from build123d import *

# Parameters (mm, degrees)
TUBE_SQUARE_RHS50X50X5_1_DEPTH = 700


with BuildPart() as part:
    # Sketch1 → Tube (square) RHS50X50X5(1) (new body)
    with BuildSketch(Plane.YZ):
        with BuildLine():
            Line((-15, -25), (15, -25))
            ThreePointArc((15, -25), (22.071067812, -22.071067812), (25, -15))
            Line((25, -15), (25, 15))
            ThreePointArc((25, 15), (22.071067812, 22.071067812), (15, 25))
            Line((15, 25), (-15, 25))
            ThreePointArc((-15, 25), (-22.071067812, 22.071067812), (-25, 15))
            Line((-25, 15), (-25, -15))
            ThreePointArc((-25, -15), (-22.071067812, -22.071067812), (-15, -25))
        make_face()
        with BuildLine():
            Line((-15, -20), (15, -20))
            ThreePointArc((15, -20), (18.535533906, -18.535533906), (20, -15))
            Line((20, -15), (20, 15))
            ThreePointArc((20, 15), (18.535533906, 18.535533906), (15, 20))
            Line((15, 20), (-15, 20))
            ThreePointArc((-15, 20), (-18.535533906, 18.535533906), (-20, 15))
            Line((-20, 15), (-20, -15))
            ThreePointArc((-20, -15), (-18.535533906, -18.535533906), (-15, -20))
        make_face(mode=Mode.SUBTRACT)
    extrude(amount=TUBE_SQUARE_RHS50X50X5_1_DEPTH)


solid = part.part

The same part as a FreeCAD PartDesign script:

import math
import FreeCAD as App
import Part
import Sketcher

V = App.Vector
Q = App.Units.Quantity

doc = App.newDocument("Part")
body = doc.addObject("PartDesign::Body", "Body")

sketch1 = doc.addObject("Sketcher::SketchObject", "Sketch")
body.addObject(sketch1)
sketch1.AttachmentSupport = (doc.YZ_Plane, [""])
sketch1.MapMode = "FlatFace"
sketch1.addGeometry(Part.LineSegment(V(-15, -25, 0), V(15, -25, 0)), False)
sketch1.addGeometry(Part.ArcOfCircle(Part.Circle(V(15, -15, 0), V(0, 0, 1), 10), math.radians(-90), math.radians(0)), False)
sketch1.addGeometry(Part.LineSegment(V(25, -15, 0), V(25, 15, 0)), False)
sketch1.addGeometry(Part.ArcOfCircle(Part.Circle(V(15, 15, 0), V(0, 0, 1), 10), math.radians(0), math.radians(90)), False)
sketch1.addGeometry(Part.LineSegment(V(15, 25, 0), V(-15, 25, 0)), False)
sketch1.addGeometry(Part.ArcOfCircle(Part.Circle(V(-15, 15, 0), V(0, 0, 1), 10), math.radians(90), math.radians(180)), False)
sketch1.addGeometry(Part.LineSegment(V(-25, 15, 0), V(-25, -15, 0)), False)
sketch1.addGeometry(Part.ArcOfCircle(Part.Circle(V(-15, -15, 0), V(0, 0, 1), 10), math.radians(180), math.radians(270)), False)
sketch1.addGeometry(Part.LineSegment(V(15, -20, 0), V(-15, -20, 0)), False)
sketch1.addGeometry(Part.ArcOfCircle(Part.Circle(V(-15, -15, 0), V(0, 0, 1), 5), math.radians(180), math.radians(270)), False)
sketch1.addGeometry(Part.LineSegment(V(-20, -15, 0), V(-20, 15, 0)), False)
sketch1.addGeometry(Part.ArcOfCircle(Part.Circle(V(-15, 15, 0), V(0, 0, 1), 5), math.radians(90), math.radians(180)), False)
sketch1.addGeometry(Part.LineSegment(V(-15, 20, 0), V(15, 20, 0)), False)
sketch1.addGeometry(Part.ArcOfCircle(Part.Circle(V(15, 15, 0), V(0, 0, 1), 5), math.radians(0), math.radians(90)), False)
sketch1.addGeometry(Part.LineSegment(V(20, 15, 0), V(20, -15, 0)), False)
sketch1.addGeometry(Part.ArcOfCircle(Part.Circle(V(15, -15, 0), V(0, 0, 1), 5), math.radians(-90), math.radians(0)), False)
sketch1.addConstraint(Sketcher.Constraint("Tangent", 0, 2, 1, 1))
sketch1.addConstraint(Sketcher.Constraint("Tangent", 1, 2, 2, 1))
sketch1.addConstraint(Sketcher.Constraint("Tangent", 2, 2, 3, 1))
sketch1.addConstraint(Sketcher.Constraint("Tangent", 3, 2, 4, 1))
sketch1.addConstraint(Sketcher.Constraint("Tangent", 4, 2, 5, 1))
sketch1.addConstraint(Sketcher.Constraint("Tangent", 5, 2, 6, 1))
sketch1.addConstraint(Sketcher.Constraint("Tangent", 6, 2, 7, 1))
sketch1.addConstraint(Sketcher.Constraint("Tangent", 7, 2, 0, 1))
sketch1.addConstraint(Sketcher.Constraint("Tangent", 8, 2, 9, 2))
sketch1.addConstraint(Sketcher.Constraint("Tangent", 9, 1, 10, 1))
sketch1.addConstraint(Sketcher.Constraint("Tangent", 10, 2, 11, 2))
sketch1.addConstraint(Sketcher.Constraint("Tangent", 11, 1, 12, 1))
sketch1.addConstraint(Sketcher.Constraint("Tangent", 12, 2, 13, 2))
sketch1.addConstraint(Sketcher.Constraint("Tangent", 13, 1, 14, 1))
sketch1.addConstraint(Sketcher.Constraint("Tangent", 14, 2, 15, 2))
sketch1.addConstraint(Sketcher.Constraint("Tangent", 15, 1, 8, 1))
sketch1.addConstraint(Sketcher.Constraint("Horizontal", 0))
sketch1.addConstraint(Sketcher.Constraint("Vertical", 2))
sketch1.addConstraint(Sketcher.Constraint("Horizontal", 4))
sketch1.addConstraint(Sketcher.Constraint("Vertical", 6))
sketch1.addConstraint(Sketcher.Constraint("Horizontal", 8))
sketch1.addConstraint(Sketcher.Constraint("Vertical", 10))
sketch1.addConstraint(Sketcher.Constraint("Horizontal", 12))
sketch1.addConstraint(Sketcher.Constraint("Vertical", 14))
sketch1.addConstraint(Sketcher.Constraint("Coincident", 9, 3, 7, 3))
sketch1.addConstraint(Sketcher.Constraint("Coincident", 11, 3, 5, 3))
sketch1.addConstraint(Sketcher.Constraint("Coincident", 13, 3, 3, 3))
sketch1.addConstraint(Sketcher.Constraint("Equal", 1, 3))
sketch1.addConstraint(Sketcher.Constraint("Equal", 3, 5))
sketch1.addConstraint(Sketcher.Constraint("Equal", 5, 7))
sketch1.addConstraint(Sketcher.Constraint("Equal", 13, 15))
sketch1.addConstraint(Sketcher.Constraint("Symmetric", 1, 3, 5, 3, -1, 1))
sketch1.addConstraint(Sketcher.Constraint("Equal", 12, 2))
sketch1.addConstraint(Sketcher.Constraint("Radius", 1, Q("10 mm")))
sketch1.addConstraint(Sketcher.Constraint("Radius", 9, Q("5 mm")))
sketch1.addConstraint(Sketcher.Constraint("DistanceX", 0, 1, 0, 2, Q("30 mm")))
pad1 = doc.addObject("PartDesign::Pad", "Pad")
body.addObject(pad1)
pad1.Profile = sketch1
pad1.Length = 700

doc.recompute()
